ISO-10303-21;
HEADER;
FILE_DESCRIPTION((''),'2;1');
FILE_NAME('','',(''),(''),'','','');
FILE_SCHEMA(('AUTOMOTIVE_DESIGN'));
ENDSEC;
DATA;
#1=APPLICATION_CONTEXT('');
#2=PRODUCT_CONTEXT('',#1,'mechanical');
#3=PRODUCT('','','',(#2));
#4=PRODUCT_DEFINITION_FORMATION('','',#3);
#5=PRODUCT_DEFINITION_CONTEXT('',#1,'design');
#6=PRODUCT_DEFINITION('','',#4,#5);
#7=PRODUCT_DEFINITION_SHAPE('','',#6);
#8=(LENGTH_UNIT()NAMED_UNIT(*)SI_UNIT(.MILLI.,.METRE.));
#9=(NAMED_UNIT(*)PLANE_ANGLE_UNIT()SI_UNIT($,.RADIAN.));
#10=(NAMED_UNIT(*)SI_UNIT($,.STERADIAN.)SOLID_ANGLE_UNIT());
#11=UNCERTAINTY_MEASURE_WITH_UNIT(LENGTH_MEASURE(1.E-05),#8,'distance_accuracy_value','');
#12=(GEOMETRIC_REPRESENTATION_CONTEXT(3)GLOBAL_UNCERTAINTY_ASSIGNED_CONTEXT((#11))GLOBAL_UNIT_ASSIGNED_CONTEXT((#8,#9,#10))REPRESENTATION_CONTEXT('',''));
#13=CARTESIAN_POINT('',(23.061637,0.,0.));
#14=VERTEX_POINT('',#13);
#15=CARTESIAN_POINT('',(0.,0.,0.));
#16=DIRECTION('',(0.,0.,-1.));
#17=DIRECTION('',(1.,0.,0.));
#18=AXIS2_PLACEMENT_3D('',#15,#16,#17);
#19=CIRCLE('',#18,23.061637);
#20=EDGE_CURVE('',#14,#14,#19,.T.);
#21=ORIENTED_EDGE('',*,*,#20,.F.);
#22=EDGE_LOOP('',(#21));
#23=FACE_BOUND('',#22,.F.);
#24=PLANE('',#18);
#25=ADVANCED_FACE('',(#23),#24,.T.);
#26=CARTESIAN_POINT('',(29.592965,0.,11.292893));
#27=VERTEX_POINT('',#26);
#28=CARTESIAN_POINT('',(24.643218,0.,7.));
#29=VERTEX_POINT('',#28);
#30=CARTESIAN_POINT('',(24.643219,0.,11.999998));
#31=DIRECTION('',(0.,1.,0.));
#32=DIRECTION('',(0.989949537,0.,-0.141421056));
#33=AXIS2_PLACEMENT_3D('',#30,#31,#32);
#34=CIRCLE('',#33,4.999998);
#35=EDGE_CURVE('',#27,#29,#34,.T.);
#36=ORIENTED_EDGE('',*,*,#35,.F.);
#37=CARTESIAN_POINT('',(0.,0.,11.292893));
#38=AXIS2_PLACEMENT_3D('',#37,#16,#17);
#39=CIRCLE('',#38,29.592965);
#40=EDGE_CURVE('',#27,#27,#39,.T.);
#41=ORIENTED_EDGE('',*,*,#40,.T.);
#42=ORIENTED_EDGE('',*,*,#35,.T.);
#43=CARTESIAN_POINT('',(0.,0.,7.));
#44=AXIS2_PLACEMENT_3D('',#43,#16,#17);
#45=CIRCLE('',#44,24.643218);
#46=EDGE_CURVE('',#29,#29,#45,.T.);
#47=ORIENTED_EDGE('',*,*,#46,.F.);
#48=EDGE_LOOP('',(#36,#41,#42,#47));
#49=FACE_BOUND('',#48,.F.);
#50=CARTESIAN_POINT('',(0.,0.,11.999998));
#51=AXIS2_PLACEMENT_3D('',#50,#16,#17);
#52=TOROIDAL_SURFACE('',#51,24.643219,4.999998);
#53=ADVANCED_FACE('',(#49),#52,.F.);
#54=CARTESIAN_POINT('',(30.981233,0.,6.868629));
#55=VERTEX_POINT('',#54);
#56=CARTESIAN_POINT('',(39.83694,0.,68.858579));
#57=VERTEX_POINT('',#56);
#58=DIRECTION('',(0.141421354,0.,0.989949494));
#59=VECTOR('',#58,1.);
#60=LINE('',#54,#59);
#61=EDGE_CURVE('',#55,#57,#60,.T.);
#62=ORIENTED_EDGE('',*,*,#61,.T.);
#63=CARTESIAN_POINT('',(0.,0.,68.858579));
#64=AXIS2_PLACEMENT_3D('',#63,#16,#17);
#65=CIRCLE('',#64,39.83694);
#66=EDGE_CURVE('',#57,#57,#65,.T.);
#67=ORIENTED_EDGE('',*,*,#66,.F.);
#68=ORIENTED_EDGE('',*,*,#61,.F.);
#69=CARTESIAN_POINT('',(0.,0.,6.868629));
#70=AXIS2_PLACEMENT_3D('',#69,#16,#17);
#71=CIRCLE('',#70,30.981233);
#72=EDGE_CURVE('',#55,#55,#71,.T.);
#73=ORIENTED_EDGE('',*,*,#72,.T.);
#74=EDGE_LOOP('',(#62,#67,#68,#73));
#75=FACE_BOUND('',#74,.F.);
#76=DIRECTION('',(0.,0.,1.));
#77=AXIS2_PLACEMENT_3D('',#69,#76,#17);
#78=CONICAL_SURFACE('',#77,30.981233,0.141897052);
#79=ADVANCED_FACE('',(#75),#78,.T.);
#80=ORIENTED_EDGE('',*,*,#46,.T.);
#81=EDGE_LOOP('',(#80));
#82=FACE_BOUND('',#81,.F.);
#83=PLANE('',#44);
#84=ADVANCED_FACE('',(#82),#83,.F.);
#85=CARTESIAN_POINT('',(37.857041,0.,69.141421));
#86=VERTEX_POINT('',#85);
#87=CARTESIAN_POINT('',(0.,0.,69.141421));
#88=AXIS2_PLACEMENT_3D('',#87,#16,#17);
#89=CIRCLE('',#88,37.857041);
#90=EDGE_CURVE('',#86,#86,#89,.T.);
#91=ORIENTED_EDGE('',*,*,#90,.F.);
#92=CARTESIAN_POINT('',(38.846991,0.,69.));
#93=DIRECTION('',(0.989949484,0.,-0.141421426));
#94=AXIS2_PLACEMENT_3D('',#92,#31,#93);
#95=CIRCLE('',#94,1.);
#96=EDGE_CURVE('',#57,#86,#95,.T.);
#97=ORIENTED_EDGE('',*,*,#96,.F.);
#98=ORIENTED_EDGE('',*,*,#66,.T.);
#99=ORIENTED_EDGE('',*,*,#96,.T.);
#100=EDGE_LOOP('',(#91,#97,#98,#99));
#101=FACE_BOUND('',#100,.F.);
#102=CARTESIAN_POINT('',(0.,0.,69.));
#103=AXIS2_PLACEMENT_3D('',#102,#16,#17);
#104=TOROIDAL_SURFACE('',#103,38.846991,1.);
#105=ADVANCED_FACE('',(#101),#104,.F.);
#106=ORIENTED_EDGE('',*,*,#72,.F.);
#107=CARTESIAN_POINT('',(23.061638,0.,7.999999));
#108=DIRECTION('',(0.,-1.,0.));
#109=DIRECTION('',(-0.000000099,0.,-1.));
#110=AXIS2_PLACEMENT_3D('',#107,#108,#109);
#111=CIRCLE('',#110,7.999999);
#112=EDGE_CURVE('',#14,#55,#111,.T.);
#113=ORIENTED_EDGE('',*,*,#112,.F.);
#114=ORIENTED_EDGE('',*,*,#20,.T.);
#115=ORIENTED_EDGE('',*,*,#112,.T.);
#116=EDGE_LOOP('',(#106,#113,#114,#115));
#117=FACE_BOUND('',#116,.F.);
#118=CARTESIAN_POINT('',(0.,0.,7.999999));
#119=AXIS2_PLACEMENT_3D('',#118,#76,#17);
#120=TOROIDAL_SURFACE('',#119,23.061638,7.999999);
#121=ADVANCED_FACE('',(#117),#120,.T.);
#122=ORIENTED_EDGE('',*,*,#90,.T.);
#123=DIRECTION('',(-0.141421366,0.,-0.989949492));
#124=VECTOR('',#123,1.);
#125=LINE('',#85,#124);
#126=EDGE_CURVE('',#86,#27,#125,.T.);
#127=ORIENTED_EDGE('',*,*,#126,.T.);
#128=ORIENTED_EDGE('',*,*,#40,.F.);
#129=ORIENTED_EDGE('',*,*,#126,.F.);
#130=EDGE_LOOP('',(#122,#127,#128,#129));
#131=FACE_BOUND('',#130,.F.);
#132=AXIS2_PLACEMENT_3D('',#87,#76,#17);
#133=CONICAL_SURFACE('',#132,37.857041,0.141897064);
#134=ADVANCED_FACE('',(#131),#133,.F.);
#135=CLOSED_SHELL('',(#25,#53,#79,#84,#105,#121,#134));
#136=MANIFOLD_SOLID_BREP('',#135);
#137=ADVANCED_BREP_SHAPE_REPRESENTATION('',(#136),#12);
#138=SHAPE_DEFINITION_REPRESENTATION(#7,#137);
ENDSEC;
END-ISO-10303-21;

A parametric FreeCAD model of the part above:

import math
import FreeCAD as App
import Part
import Sketcher

V = App.Vector

doc = App.newDocument("Part")
body = doc.addObject("PartDesign::Body", "Body")

sketch1 = doc.addObject("Sketcher::SketchObject", "Sketch")
body.addObject(sketch1)
sketch1.AttachmentSupport = (doc.XZ_Plane, [""])
sketch1.MapMode = "FlatFace"
sketch1.addGeometry(Part.LineSegment(V(0, 7, 0), V(0, 0, 0)), False)
sketch1.addGeometry(Part.LineSegment(V(0, 0, 0), V(23.061637, 0, 0)), False)
sketch1.addGeometry(Part.ArcOfCircle(Part.Circle(V(23.061638, 7.999999, 0), V(0, 0, 1), 7.999999), math.radians(-90.000006), math.radians(-8.130098)), False)
sketch1.addGeometry(Part.LineSegment(V(30.981233, 6.868629, 0), V(39.83694, 68.858579, 0)), False)
sketch1.addGeometry(Part.ArcOfCircle(Part.Circle(V(38.846991, 69, 0), V(0, 0, 1), 1), math.radians(171.869942), math.radians(351.869894)), False)
sketch1.addGeometry(Part.LineSegment(V(37.857041, 69.141421, 0), V(29.592965, 11.292893, 0)), False)
sketch1.addGeometry(Part.ArcOfCircle(Part.Circle(V(24.643219, 11.999998, 0), V(0, 0, 1), 4.999998), math.radians(-90.000015), math.radians(-8.130085)), False)
sketch1.addGeometry(Part.LineSegment(V(24.643218, 7, 0), V(0, 7, 0)), False)
sketch1.addConstraint(Sketcher.Constraint("Coincident", 0, 2, 1, 1))
sketch1.addConstraint(Sketcher.Constraint("Tangent", 1, 2, 2, 1))
sketch1.addConstraint(Sketcher.Constraint("Tangent", 2, 2, 3, 1))
sketch1.addConstraint(Sketcher.Constraint("Tangent", 3, 2, 4, 2))
sketch1.addConstraint(Sketcher.Constraint("Tangent", 4, 1, 5, 1))
sketch1.addConstraint(Sketcher.Constraint("Tangent", 5, 2, 6, 2))
sketch1.addConstraint(Sketcher.Constraint("Tangent", 6, 1, 7, 1))
sketch1.addConstraint(Sketcher.Constraint("Coincident", 7, 2, 0, 1))
sketch1.addConstraint(Sketcher.Constraint("Vertical", 0))
sketch1.addConstraint(Sketcher.Constraint("Horizontal", 1))
sketch1.addConstraint(Sketcher.Constraint("Horizontal", 7))
sketch1.addConstraint(Sketcher.Constraint("Coincident", 0, 2, -1, 1))
sketch1.addConstraint(Sketcher.Constraint("Parallel", 3, 5))
sketch1.addConstraint(Sketcher.Constraint("Radius", 2, 7.999999))
sketch1.addConstraint(Sketcher.Constraint("Radius", 4, 1.0))
sketch1.addConstraint(Sketcher.Constraint("DistanceY", 0, 2, 0, 1, 7.0))
sketch1.addConstraint(Sketcher.Constraint("DistanceY", -1, 1, 4, 3, 69.0))
sketch1.addConstraint(Sketcher.Constraint("DistanceY", 2, 3, 6, 3, 3.999999))
sketch1.addConstraint(Sketcher.Constraint("DistanceX", 7, 2, 7, 1, 24.643218))
sketch1.addConstraint(Sketcher.Constraint("DistanceX", 1, 1, 1, 2, 23.061637))
revolution = doc.addObject("PartDesign::Revolution", "Revolution")
body.addObject(revolution)
revolution.Profile = sketch1
revolution.ReferenceAxis = (sketch1, ["V_Axis"])
revolution.Angle = 360

doc.recompute()
